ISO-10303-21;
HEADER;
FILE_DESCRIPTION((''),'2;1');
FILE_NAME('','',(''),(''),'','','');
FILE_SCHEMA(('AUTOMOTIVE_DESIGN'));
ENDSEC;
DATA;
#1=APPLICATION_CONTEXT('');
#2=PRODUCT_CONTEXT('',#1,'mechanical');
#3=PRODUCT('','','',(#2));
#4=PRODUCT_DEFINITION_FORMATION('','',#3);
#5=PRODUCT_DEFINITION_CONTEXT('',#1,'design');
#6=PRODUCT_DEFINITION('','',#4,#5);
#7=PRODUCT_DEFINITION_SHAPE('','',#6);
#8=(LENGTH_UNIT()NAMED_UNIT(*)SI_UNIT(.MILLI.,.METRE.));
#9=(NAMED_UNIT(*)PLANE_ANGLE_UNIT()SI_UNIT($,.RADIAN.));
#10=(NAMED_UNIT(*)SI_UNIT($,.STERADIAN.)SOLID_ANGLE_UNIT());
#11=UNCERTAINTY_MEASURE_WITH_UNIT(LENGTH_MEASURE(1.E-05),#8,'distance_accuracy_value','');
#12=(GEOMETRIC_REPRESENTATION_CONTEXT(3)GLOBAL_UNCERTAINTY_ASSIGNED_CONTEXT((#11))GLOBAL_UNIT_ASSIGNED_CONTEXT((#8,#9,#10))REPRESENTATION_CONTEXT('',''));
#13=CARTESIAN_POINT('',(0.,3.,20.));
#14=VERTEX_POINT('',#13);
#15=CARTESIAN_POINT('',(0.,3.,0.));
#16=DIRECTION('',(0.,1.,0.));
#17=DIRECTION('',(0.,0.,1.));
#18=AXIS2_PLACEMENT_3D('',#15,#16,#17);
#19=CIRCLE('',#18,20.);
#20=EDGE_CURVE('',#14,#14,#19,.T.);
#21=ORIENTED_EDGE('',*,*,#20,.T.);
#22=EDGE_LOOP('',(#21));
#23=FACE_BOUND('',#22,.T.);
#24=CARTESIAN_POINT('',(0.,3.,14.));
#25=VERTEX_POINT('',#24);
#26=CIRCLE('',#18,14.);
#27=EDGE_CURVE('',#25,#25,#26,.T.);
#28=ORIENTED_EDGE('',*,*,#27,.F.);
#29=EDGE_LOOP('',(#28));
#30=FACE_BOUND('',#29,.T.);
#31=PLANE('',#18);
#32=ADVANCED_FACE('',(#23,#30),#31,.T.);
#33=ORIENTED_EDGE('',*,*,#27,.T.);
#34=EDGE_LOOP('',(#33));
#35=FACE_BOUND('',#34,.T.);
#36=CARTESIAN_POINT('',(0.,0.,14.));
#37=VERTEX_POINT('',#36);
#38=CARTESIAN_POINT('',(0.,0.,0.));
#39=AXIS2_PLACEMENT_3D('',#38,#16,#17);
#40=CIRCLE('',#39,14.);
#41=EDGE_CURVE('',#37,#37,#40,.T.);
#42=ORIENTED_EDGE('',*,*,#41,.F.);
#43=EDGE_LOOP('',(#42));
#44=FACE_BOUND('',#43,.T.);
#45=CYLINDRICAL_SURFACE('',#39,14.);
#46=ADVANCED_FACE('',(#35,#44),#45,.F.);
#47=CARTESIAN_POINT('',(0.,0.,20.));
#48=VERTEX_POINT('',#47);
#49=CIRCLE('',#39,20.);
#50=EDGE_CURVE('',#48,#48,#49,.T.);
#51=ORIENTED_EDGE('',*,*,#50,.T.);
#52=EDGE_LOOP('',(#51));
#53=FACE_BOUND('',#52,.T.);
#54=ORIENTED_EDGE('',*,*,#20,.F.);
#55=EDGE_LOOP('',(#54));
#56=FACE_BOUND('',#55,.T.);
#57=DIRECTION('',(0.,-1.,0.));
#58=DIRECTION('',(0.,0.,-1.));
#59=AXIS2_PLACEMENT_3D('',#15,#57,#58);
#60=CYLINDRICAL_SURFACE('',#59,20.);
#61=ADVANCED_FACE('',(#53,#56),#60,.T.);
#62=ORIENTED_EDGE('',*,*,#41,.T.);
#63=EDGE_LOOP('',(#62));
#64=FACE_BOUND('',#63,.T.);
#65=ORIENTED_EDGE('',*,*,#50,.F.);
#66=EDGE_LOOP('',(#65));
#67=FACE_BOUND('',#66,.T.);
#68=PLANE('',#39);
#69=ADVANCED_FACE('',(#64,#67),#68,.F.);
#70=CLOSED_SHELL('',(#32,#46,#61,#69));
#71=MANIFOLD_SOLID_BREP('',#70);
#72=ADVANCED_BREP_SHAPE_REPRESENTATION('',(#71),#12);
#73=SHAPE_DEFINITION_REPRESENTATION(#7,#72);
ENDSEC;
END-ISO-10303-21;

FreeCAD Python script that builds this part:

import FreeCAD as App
import Part
import Sketcher

doc = App.newDocument("Part")
params = doc.addObject("Spreadsheet::Sheet", "Params")
for row, (alias, value) in enumerate([
    ("sketch1_diameter", "40 mm"),
    ("pad1_length", "3 mm"),
    ("sketch2_diameter", "28 mm"),
    ("pocket1_length", "3 mm"),
], start=1):
    params.set(f"A{row}", alias)
    params.set(f"B{row}", "=" + value)
    params.setAlias(f"B{row}", alias)

body = doc.addObject("PartDesign::Body", "Body")

# Sketch on XZ plane
sketch1 = body.newObject("Sketcher::SketchObject", "Sketch")
sketch1.AttachmentSupport = (doc.getObject("XZ_Plane"), [""])
sketch1.MapMode = "FlatFace"
sketch1.addGeometry(Part.Circle(App.Vector(0, 0, 0), App.Vector(0, 0, 1), 20), False)
sketch1.addConstraint(Sketcher.Constraint("Coincident", 0, 3, -1, 1))
sketch1.addConstraint(Sketcher.Constraint("Diameter", 0, 40.0))
sketch1.setExpression("Constraints[1]", "Params.sketch1_diameter")
pad1 = body.newObject("PartDesign::Pad", "Pad")
pad1.Profile = sketch1
pad1.setExpression("Length", "Params.pad1_length")
pad1.Reversed = True

# Sketch on XZ plane
sketch2 = body.newObject("Sketcher::SketchObject", "Sketch001")
sketch2.AttachmentSupport = (doc.getObject("XZ_Plane"), [""])
sketch2.MapMode = "FlatFace"
sketch2.AttachmentOffset = App.Placement(App.Vector(0, 0, -3), App.Rotation())
sketch2.addGeometry(Part.Circle(App.Vector(0, 0, 0), App.Vector(0, 0, 1), 14), False)
sketch2.addConstraint(Sketcher.Constraint("Coincident", 0, 3, -1, 1))
sketch2.addConstraint(Sketcher.Constraint("Diameter", 0, 28.0))
sketch2.setExpression("Constraints[1]", "Params.sketch2_diameter")
pocket1 = body.newObject("PartDesign::Pocket", "Pocket")
pocket1.Profile = sketch2
pocket1.setExpression("Length", "Params.pocket1_length")
pocket1.Reversed = True

doc.recompute()
